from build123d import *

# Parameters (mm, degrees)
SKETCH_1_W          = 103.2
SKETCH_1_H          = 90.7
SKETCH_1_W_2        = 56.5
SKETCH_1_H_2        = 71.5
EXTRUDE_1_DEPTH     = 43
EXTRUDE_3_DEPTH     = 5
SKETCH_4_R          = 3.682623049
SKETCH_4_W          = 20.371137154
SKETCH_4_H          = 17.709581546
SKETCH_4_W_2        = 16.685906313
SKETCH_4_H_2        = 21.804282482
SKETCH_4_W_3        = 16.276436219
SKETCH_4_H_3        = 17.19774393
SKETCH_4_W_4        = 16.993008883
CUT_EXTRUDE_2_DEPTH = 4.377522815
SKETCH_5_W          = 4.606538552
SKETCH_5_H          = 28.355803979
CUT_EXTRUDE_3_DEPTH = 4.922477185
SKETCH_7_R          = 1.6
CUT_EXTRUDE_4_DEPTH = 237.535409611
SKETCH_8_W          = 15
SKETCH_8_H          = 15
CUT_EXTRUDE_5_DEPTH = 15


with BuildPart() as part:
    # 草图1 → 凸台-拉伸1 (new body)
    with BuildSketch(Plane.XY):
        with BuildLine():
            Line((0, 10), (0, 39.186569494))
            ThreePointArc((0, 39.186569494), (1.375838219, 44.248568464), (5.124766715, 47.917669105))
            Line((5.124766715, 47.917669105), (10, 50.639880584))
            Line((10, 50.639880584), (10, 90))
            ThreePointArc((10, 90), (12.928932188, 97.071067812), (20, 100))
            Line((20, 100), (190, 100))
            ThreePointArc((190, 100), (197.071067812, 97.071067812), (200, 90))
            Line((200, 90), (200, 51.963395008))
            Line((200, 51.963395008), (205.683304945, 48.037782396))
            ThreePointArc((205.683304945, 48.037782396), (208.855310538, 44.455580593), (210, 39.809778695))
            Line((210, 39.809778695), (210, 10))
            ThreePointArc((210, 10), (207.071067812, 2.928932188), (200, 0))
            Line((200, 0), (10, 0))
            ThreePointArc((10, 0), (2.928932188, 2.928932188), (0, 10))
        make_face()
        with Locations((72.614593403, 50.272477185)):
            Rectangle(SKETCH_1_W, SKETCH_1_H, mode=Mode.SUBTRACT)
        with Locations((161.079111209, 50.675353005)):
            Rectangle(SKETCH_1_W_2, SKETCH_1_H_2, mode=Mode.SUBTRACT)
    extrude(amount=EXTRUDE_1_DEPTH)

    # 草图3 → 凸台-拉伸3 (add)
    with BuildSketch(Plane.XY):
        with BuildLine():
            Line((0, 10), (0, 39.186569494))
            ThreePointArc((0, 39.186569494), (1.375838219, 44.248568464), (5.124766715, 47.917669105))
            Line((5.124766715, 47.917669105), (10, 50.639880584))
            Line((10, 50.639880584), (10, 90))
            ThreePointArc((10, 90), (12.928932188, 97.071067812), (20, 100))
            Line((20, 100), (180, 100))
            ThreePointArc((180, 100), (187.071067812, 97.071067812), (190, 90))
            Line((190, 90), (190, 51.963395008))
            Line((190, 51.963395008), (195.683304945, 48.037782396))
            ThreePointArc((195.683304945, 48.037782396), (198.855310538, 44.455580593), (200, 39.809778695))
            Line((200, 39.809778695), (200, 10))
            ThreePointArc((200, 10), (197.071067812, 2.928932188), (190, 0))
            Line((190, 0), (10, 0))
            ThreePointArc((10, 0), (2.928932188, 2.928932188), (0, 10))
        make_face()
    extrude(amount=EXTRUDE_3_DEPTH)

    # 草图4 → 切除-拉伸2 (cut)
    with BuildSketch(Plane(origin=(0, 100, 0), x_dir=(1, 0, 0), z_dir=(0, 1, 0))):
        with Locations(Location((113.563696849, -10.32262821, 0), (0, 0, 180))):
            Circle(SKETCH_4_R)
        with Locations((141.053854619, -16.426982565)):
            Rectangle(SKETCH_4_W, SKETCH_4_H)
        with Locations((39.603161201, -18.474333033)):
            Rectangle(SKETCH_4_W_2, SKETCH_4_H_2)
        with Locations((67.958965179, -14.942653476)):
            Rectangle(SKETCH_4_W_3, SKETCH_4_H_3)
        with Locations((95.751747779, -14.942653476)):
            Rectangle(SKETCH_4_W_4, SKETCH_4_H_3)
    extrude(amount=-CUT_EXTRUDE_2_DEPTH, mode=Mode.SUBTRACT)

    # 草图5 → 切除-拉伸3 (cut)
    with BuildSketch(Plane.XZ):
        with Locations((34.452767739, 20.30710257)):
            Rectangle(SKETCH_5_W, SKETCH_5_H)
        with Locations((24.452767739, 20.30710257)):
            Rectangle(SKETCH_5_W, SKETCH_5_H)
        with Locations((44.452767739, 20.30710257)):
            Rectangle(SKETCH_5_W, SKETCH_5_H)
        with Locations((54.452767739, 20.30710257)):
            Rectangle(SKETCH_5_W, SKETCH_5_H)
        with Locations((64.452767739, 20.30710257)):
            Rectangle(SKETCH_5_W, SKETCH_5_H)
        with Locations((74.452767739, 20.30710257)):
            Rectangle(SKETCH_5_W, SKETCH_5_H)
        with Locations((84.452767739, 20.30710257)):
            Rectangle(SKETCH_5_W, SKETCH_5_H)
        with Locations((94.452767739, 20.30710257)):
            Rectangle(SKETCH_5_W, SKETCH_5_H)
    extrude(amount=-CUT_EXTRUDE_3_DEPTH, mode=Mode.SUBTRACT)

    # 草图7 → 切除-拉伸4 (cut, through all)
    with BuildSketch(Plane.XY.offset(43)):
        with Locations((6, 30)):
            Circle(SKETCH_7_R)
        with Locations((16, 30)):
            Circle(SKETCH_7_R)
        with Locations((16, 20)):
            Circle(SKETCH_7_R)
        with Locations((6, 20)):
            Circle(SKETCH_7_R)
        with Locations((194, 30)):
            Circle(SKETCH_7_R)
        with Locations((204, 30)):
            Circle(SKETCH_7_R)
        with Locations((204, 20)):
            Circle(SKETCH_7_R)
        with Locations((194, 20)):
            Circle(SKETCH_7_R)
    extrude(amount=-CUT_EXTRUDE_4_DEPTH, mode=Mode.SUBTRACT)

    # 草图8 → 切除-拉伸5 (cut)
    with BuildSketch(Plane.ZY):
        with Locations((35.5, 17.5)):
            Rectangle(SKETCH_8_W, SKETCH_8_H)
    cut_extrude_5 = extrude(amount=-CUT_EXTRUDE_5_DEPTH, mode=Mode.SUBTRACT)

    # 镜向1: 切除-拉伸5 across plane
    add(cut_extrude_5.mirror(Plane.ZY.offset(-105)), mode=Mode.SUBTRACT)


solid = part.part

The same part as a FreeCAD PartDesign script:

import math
import FreeCAD as App
import Part
import Sketcher

V = App.Vector


def add_polygon(sketch, points):
    """Adds a closed chain of lines whose ends are joined by coincident constraints."""
    first, n = sketch.GeometryCount, len(points)
    for a, b in zip(points, points[1:] + points[:1]):
        sketch.addGeometry(Part.LineSegment(App.Vector(*a, 0), App.Vector(*b, 0)), False)
    for i in range(n):
        sketch.addConstraint(Sketcher.Constraint("Coincident", first + i, 2, first + (i + 1) % n, 1))

doc = App.newDocument("Part")
body = doc.addObject("PartDesign::Body", "Body")

sketch1 = body.newObject("Sketcher::SketchObject", "Sketch")
sketch1.AttachmentSupport = (doc.getObject("XY_Plane"), [""])
sketch1.MapMode = "FlatFace"
sketch1.addGeometry(Part.LineSegment(V(0, 39, 0), V(0, 10, 0)), False)
sketch1.addGeometry(Part.ArcOfCircle(Part.Circle(V(10, 10, 0), V(0, 0, 1), 10), math.radians(180), math.radians(270)), False)
sketch1.addGeometry(Part.LineSegment(V(10, 0, 0), V(200, 0, 0)), False)
sketch1.addGeometry(Part.ArcOfCircle(Part.Circle(V(200, 10, 0), V(0, 0, 1), 10), math.radians(-90), math.radians(0)), False)
sketch1.addGeometry(Part.LineSegment(V(210, 10, 0), V(210, 40, 0)), False)
sketch1.addGeometry(Part.ArcOfCircle(Part.Circle(V(200, 40, 0), V(0, 0, 1), 10), math.radians(0), math.radians(55)), False)
sketch1.addGeometry(Part.LineSegment(V(206, 48, 0), V(200, 52, 0)), False)
sketch1.addGeometry(Part.LineSegment(V(200, 52, 0), V(200, 90, 0)), False)
sketch1.addGeometry(Part.ArcOfCircle(Part.Circle(V(190, 90, 0), V(0, 0, 1), 10), math.radians(0), math.radians(90)), False)
sketch1.addGeometry(Part.LineSegment(V(190, 100, 0), V(20, 100, 0)), False)
sketch1.addGeometry(Part.ArcOfCircle(Part.Circle(V(20, 90, 0), V(0, 0, 1), 10), math.radians(90), math.radians(180)), False)
sketch1.addGeometry(Part.LineSegment(V(10, 90, 0), V(10, 51, 0)), False)
sketch1.addGeometry(Part.LineSegment(V(10, 51, 0), V(5, 48, 0)), False)
sketch1.addGeometry(Part.ArcOfCircle(Part.Circle(V(10, 39, 0), V(0, 0, 1), 10), math.radians(119), math.radians(180)), False)
add_polygon(sketch1, [(133, 15), (133, 86), (189, 86), (189, 15)])
add_polygon(sketch1, [(21, 5), (21, 96), (124, 96), (124, 5)])
sketch1.addConstraint([
    Sketcher.Constraint("Tangent", 0, 2, 1, 1),
    Sketcher.Constraint("Tangent", 1, 2, 2, 1),
    Sketcher.Constraint("Tangent", 2, 2, 3, 1),
    Sketcher.Constraint("Tangent", 3, 2, 4, 1),
    Sketcher.Constraint("Tangent", 4, 2, 5, 1),
    Sketcher.Constraint("Tangent", 5, 2, 6, 1),
    Sketcher.Constraint("Coincident", 6, 2, 7, 1),
    Sketcher.Constraint("Tangent", 7, 2, 8, 1),
    Sketcher.Constraint("Tangent", 8, 2, 9, 1),
    Sketcher.Constraint("Tangent", 9, 2, 10, 1),
    Sketcher.Constraint("Tangent", 10, 2, 11, 1),
    Sketcher.Constraint("Coincident", 11, 2, 12, 1),
    Sketcher.Constraint("Tangent", 12, 2, 13, 1),
    Sketcher.Constraint("Tangent", 13, 2, 0, 1),
    Sketcher.Constraint("Vertical", 0),
    Sketcher.Constraint("Horizontal", 2),
    Sketcher.Constraint("Vertical", 4),
    Sketcher.Constraint("Vertical", 7),
    Sketcher.Constraint("Horizontal", 9),
    Sketcher.Constraint("Vertical", 11),
    Sketcher.Constraint("Vertical", 14),
    Sketcher.Constraint("Horizontal", 15),
    Sketcher.Constraint("Vertical", 16),
    Sketcher.Constraint("Horizontal", 17),
    Sketcher.Constraint("Vertical", 18),
    Sketcher.Constraint("Horizontal", 19),
    Sketcher.Constraint("Vertical", 20),
    Sketcher.Constraint("Horizontal", 21),
    Sketcher.Constraint("Equal", 1, 3),
    Sketcher.Constraint("Equal", 3, 5),
    Sketcher.Constraint("Equal", 5, 8),
    Sketcher.Constraint("Equal", 8, 10),
    Sketcher.Constraint("Equal", 10, 13),
    Sketcher.Constraint("PointOnObject", 0, 2, -2),
    Sketcher.Constraint("PointOnObject", 1, 2, -1),
    Sketcher.Constraint("Vertical", 2, 2, 6, 2),
    Sketcher.Constraint("Vertical", 1, 2, 10, 2),
    Sketcher.Constraint("Radius", 1, 10.0),
    Sketcher.Constraint("DistanceX", 2, 1, 2, 2, 190.0),
    Sketcher.Constraint("DistanceX", 15, 1, 15, 2, 56.5),
    Sketcher.Constraint("DistanceX", 19, 1, 19, 2, 103.2),
    Sketcher.Constraint("DistanceY", 14, 1, 14, 2, 71.5),
    Sketcher.Constraint("DistanceY", 18, 1, 18, 2, 90.7),
    Sketcher.Constraint("DistanceY", -1, 1, 8, 3, 90.0),
    Sketcher.Constraint("DistanceY", 0, 2, 0, 1, 29.186569),
    Sketcher.Constraint("DistanceY", 4, 1, 4, 2, 29.809779),
    Sketcher.Constraint("DistanceY", 11, 2, 11, 1, 39.360119),
    Sketcher.Constraint("Distance", 6, 6.907271),
    Sketcher.Constraint("DistanceX", -1, 1, 14, 2, 132.829111),
    Sketcher.Constraint("DistanceY", 5, 2, 15, 2, 38.387571),
    Sketcher.Constraint("DistanceY", 12, 2, 18, 2, 47.704808),
    Sketcher.Constraint("DistanceX", -1, 1, 18, 2, 21.014593),
])
pad1 = body.newObject("PartDesign::Pad", "Pad")
pad1.Profile = sketch1
pad1.Length = 43

sketch2 = body.newObject("Sketcher::SketchObject", "Sketch001")
sketch2.AttachmentSupport = (doc.getObject("XY_Plane"), [""])
sketch2.MapMode = "FlatFace"
sketch2.addGeometry([
    Part.LineSegment(V(0, 39, 0), V(0, 10, 0)),
    Part.ArcOfCircle(Part.Circle(V(10, 10, 0), V(0, 0, 1), 10), math.radians(180), math.radians(270)),
    Part.LineSegment(V(10, 0, 0), V(190, 0, 0)),
    Part.ArcOfCircle(Part.Circle(V(190, 10, 0), V(0, 0, 1), 10), math.radians(-90), math.radians(0)),
    Part.LineSegment(V(200, 10, 0), V(200, 40, 0)),
    Part.ArcOfCircle(Part.Circle(V(190, 40, 0), V(0, 0, 1), 10), math.radians(0), math.radians(55)),
    Part.LineSegment(V(196, 48, 0), V(190, 52, 0)),
    Part.LineSegment(V(190, 52, 0), V(190, 90, 0)),
    Part.ArcOfCircle(Part.Circle(V(180, 90, 0), V(0, 0, 1), 10), math.radians(0), math.radians(90)),
    Part.LineSegment(V(180, 100, 0), V(20, 100, 0)),
    Part.ArcOfCircle(Part.Circle(V(20, 90, 0), V(0, 0, 1), 10), math.radians(90), math.radians(180)),
    Part.LineSegment(V(10, 90, 0), V(10, 51, 0)),
    Part.LineSegment(V(10, 51, 0), V(5, 48, 0)),
    Part.ArcOfCircle(Part.Circle(V(10, 39, 0), V(0, 0, 1), 10), math.radians(119), math.radians(180)),
], False)
sketch2.addConstraint([
    Sketcher.Constraint("Tangent", 0, 2, 1, 1),
    Sketcher.Constraint("Tangent", 1, 2, 2, 1),
    Sketcher.Constraint("Tangent", 2, 2, 3, 1),
    Sketcher.Constraint("Tangent", 3, 2, 4, 1),
    Sketcher.Constraint("Tangent", 4, 2, 5, 1),
    Sketcher.Constraint("Tangent", 5, 2, 6, 1),
    Sketcher.Constraint("Coincident", 6, 2, 7, 1),
    Sketcher.Constraint("Tangent", 7, 2, 8, 1),
    Sketcher.Constraint("Tangent", 8, 2, 9, 1),
    Sketcher.Constraint("Tangent", 9, 2, 10, 1),
    Sketcher.Constraint("Tangent", 10, 2, 11, 1),
    Sketcher.Constraint("Coincident", 11, 2, 12, 1),
    Sketcher.Constraint("Tangent", 12, 2, 13, 1),
    Sketcher.Constraint("Tangent", 13, 2, 0, 1),
    Sketcher.Constraint("Vertical", 0),
    Sketcher.Constraint("Horizontal", 2),
    Sketcher.Constraint("Vertical", 4),
    Sketcher.Constraint("Vertical", 7),
    Sketcher.Constraint("Horizontal", 9),
    Sketcher.Constraint("Vertical", 11),
    Sketcher.Constraint("Equal", 1, 3),
    Sketcher.Constraint("Equal", 3, 5),
    Sketcher.Constraint("Equal", 5, 8),
    Sketcher.Constraint("Equal", 8, 10),
    Sketcher.Constraint("Equal", 10, 13),
    Sketcher.Constraint("PointOnObject", 0, 2, -2),
    Sketcher.Constraint("PointOnObject", 1, 2, -1),
    Sketcher.Constraint("Vertical", 2, 2, 6, 2),
    Sketcher.Constraint("Vertical", 1, 2, 10, 2),
    Sketcher.Constraint("Radius", 1, 10.0),
    Sketcher.Constraint("DistanceX", 2, 1, 2, 2, 180.0),
    Sketcher.Constraint("DistanceY", -1, 1, 8, 3, 90.0),
    Sketcher.Constraint("DistanceY", 0, 2, 0, 1, 29.186569),
    Sketcher.Constraint("DistanceY", 4, 1, 4, 2, 29.809779),
    Sketcher.Constraint("DistanceY", 11, 2, 11, 1, 39.360119),
    Sketcher.Constraint("Distance", 6, 6.907271),
])
pad2 = body.newObject("PartDesign::Pad", "Pad001")
pad2.Profile = sketch2
pad2.Length = 5

sketch3 = body.newObject("Sketcher::SketchObject", "Sketch002")
sketch3.AttachmentSupport = (doc.getObject("XZ_Plane"), [""])
sketch3.MapMode = "FlatFace"
sketch3.AttachmentOffset = App.Placement(V(0, 0, -100), App.Rotation())
sketch3.addGeometry(Part.Circle(V(113.6, 10.3, 0), V(0, 0, 1), 3.7), False)
add_polygon(sketch3, [(130.9, 7.6), (130.9, 25.3), (151.2, 25.3), (151.2, 7.6)])
add_polygon(sketch3, [(31.3, 7.6), (31.3, 29.4), (47.9, 29.4), (47.9, 7.6)])
add_polygon(sketch3, [(59.8, 6.3), (59.8, 23.5), (76.1, 23.5), (76.1, 6.3)])
add_polygon(sketch3, [(87.3, 6.3), (87.3, 23.5), (104.2, 23.5), (104.2, 6.3)])
sketch3.addConstraint([
    Sketcher.Constraint("Vertical", 1),
    Sketcher.Constraint("Horizontal", 2),
    Sketcher.Constraint("Vertical", 3),
    Sketcher.Constraint("Horizontal", 4),
    Sketcher.Constraint("Vertical", 5),
    Sketcher.Constraint("Horizontal", 6),
    Sketcher.Constraint("Vertical", 7),
    Sketcher.Constraint("Horizontal", 8),
    Sketcher.Constraint("Vertical", 9),
    Sketcher.Constraint("Horizontal", 10),
    Sketcher.Constraint("Vertical", 11),
    Sketcher.Constraint("Horizontal", 12),
    Sketcher.Constraint("Vertical", 13),
    Sketcher.Constraint("Horizontal", 14),
    Sketcher.Constraint("Vertical", 15),
    Sketcher.Constraint("Horizontal", 16),
    Sketcher.Constraint("Horizontal", 4, 2, 7, 2),
    Sketcher.Constraint("Horizontal", 10, 2, 13, 2),
    Sketcher.Constraint("Horizontal", 12, 2, 15, 2),
    Sketcher.Constraint("Diameter", 0, 7.365246),
    Sketcher.Constraint("DistanceX", 14, 1, 14, 2, 16.993009),
    Sketcher.Constraint("DistanceY", 1, 1, 1, 2, 17.709582),
    Sketcher.Constraint("DistanceY", 1, 2, 5, 2, 4.094701),
    Sketcher.Constraint("DistanceX", 2, 1, 2, 2, 20.371137),
    Sketcher.Constraint("DistanceX", 6, 1, 6, 2, 16.685906),
    Sketcher.Constraint("DistanceX", 10, 1, 10, 2, 16.276436),
    Sketcher.Constraint("DistanceY", 9, 1, 9, 2, 17.197744),
    Sketcher.Constraint("DistanceY", -1, 1, 0, 3, 10.322628),
    Sketcher.Constraint("DistanceY", -1, 1, 3, 2, 7.572192),
    Sketcher.Constraint("DistanceX", -1, 1, 5, 2, 31.260208),
    Sketcher.Constraint("DistanceY", -1, 1, 11, 2, 6.343782),
    Sketcher.Constraint("DistanceX", 0, 3, 1, 2, 17.304589),
    Sketcher.Constraint("DistanceX", 5, 2, 0, 3, 82.303489),
    Sketcher.Constraint("DistanceX", 5, 2, 9, 2, 28.560539),
    Sketcher.Constraint("DistanceX", 10, 2, 13, 2, 11.15806),
])
pocket1 = body.newObject("PartDesign::Pocket", "Pocket")
pocket1.Profile = sketch3
pocket1.Length = 4.377523
pocket1.Reversed = True

sketch4 = body.newObject("Sketcher::SketchObject", "Sketch003")
sketch4.AttachmentSupport = (doc.getObject("XZ_Plane"), [""])
sketch4.MapMode = "FlatFace"
add_polygon(sketch4, [(32.1, 34.5), (32.1, 6.1), (36.8, 6.1), (36.8, 34.5)])
add_polygon(sketch4, [(22.1, 34.5), (22.1, 6.1), (26.8, 6.1), (26.8, 34.5)])
add_polygon(sketch4, [(42.1, 34.5), (42.1, 6.1), (46.8, 6.1), (46.8, 34.5)])
add_polygon(sketch4, [(52.1, 34.5), (52.1, 6.1), (56.8, 6.1), (56.8, 34.5)])
add_polygon(sketch4, [(62.1, 34.5), (62.1, 6.1), (66.8, 6.1), (66.8, 34.5)])
add_polygon(sketch4, [(72.1, 34.5), (72.1, 6.1), (76.8, 6.1), (76.8, 34.5)])
add_polygon(sketch4, [(82.1, 34.5), (82.1, 6.1), (86.8, 6.1), (86.8, 34.5)])
add_polygon(sketch4, [(92.1, 34.5), (92.1, 6.1), (96.8, 6.1), (96.8, 34.5)])
sketch4.addConstraint([
    Sketcher.Constraint("Vertical", 0),
    Sketcher.Constraint("Horizontal", 1),
    Sketcher.Constraint("Vertical", 2),
    Sketcher.Constraint("Horizontal", 3),
    Sketcher.Constraint("Vertical", 4),
    Sketcher.Constraint("Horizontal", 5),
    Sketcher.Constraint("Vertical", 6),
    Sketcher.Constraint("Horizontal", 7),
    Sketcher.Constraint("Vertical", 8),
    Sketcher.Constraint("Horizontal", 9),
    Sketcher.Constraint("Vertical", 10),
    Sketcher.Constraint("Horizontal", 11),
    Sketcher.Constraint("Vertical", 12),
    Sketcher.Constraint("Horizontal", 13),
    Sketcher.Constraint("Vertical", 14),
    Sketcher.Constraint("Horizontal", 15),
    Sketcher.Constraint("Vertical", 16),
    Sketcher.Constraint("Horizontal", 17),
    Sketcher.Constraint("Vertical", 18),
    Sketcher.Constraint("Horizontal", 19),
    Sketcher.Constraint("Vertical", 20),
    Sketcher.Constraint("Horizontal", 21),
    Sketcher.Constraint("Vertical", 22),
    Sketcher.Constraint("Horizontal", 23),
    Sketcher.Constraint("Vertical", 24),
    Sketcher.Constraint("Horizontal", 25),
    Sketcher.Constraint("Vertical", 26),
    Sketcher.Constraint("Horizontal", 27),
    Sketcher.Constraint("Vertical", 28),
    Sketcher.Constraint("Horizontal", 29),
    Sketcher.Constraint("Vertical", 30),
    Sketcher.Constraint("Horizontal", 31),
    Sketcher.Constraint("Horizontal", 1, 2, 4, 2),
    Sketcher.Constraint("Horizontal", 3, 2, 6, 2),
    Sketcher.Constraint("Horizontal", 5, 2, 8, 2),
    Sketcher.Constraint("Horizontal", 7, 2, 10, 2),
    Sketcher.Constraint("Horizontal", 9, 2, 12, 2),
    Sketcher.Constraint("Horizontal", 11, 2, 14, 2),
    Sketcher.Constraint("Horizontal", 13, 2, 16, 2),
    Sketcher.Constraint("Horizontal", 15, 2, 18, 2),
    Sketcher.Constraint("Horizontal", 17, 2, 20, 2),
    Sketcher.Constraint("Horizontal", 19, 2, 22, 2),
    Sketcher.Constraint("Horizontal", 21, 2, 24, 2),
    Sketcher.Constraint("Horizontal", 23, 2, 26, 2),
    Sketcher.Constraint("Horizontal", 25, 2, 28, 2),
    Sketcher.Constraint("Horizontal", 27, 2, 30, 2),
    Sketcher.Constraint("Equal", 3, 5),
    Sketcher.Constraint("Equal", 7, 9),
    Sketcher.Constraint("Equal", 11, 13),
    Sketcher.Constraint("Equal", 15, 17),
    Sketcher.Constraint("Equal", 19, 21),
    Sketcher.Constraint("Equal", 23, 25),
    Sketcher.Constraint("Equal", 27, 29),
    Sketcher.Constraint("DistanceX", 4, 2, 0, 2, 10.0),
    Sketcher.Constraint("DistanceX", 0, 2, 8, 2, 10.0),
    Sketcher.Constraint("DistanceX", 8, 2, 12, 2, 10.0),
    Sketcher.Constraint("DistanceX", 12, 2, 16, 2, 10.0),
    Sketcher.Constraint("DistanceX", 16, 2, 20, 2, 10.0),
    Sketcher.Constraint("DistanceX", 20, 2, 24, 2, 10.0),
    Sketcher.Constraint("DistanceX", 24, 2, 28, 2, 10.0),
    Sketcher.Constraint("DistanceX", 1, 1, 1, 2, 4.606539),
    Sketcher.Constraint("DistanceX", -1, 1, 0, 2, 32.149498),
    Sketcher.Constraint("DistanceY", -1, 1, 0, 2, 6.129201),
    Sketcher.Constraint("DistanceY", 0, 2, 0, 1, 28.355804),
])
pocket2 = body.newObject("PartDesign::Pocket", "Pocket001")
pocket2.Profile = sketch4
pocket2.Length = 4.922477

sketch5 = body.newObject("Sketcher::SketchObject", "Sketch004")
sketch5.AttachmentSupport = (doc.getObject("XY_Plane"), [""])
sketch5.MapMode = "FlatFace"
sketch5.AttachmentOffset = App.Placement(V(0, 0, 43), App.Rotation())
sketch5.addGeometry([
    Part.Circle(V(6, 30, 0), V(0, 0, 1), 1.6),
    Part.Circle(V(16, 30, 0), V(0, 0, 1), 1.6),
    Part.Circle(V(16, 20, 0), V(0, 0, 1), 1.6),
    Part.Circle(V(6, 20, 0), V(0, 0, 1), 1.6),
    Part.Circle(V(194, 30, 0), V(0, 0, 1), 1.6),
    Part.Circle(V(204, 30, 0), V(0, 0, 1), 1.6),
    Part.Circle(V(204, 20, 0), V(0, 0, 1), 1.6),
    Part.Circle(V(194, 20, 0), V(0, 0, 1), 1.6),
], False)
sketch5.addConstraint([
    Sketcher.Constraint("Equal", 0, 1),
    Sketcher.Constraint("Equal", 1, 2),
    Sketcher.Constraint("Equal", 2, 3),
    Sketcher.Constraint("Equal", 3, 4),
    Sketcher.Constraint("Equal", 4, 5),
    Sketcher.Constraint("Equal", 5, 6),
    Sketcher.Constraint("Equal", 6, 7),
    Sketcher.Constraint("Horizontal", 0, 3, 1, 3),
    Sketcher.Constraint("Horizontal", 2, 3, 3, 3),
    Sketcher.Constraint("Horizontal", 1, 3, 4, 3),
    Sketcher.Constraint("Horizontal", 4, 3, 5, 3),
    Sketcher.Constraint("Horizontal", 3, 3, 6, 3),
    Sketcher.Constraint("Horizontal", 6, 3, 7, 3),
    Sketcher.Constraint("Vertical", 1, 3, 2, 3),
    Sketcher.Constraint("Vertical", 0, 3, 3, 3),
    Sketcher.Constraint("Vertical", 5, 3, 6, 3),
    Sketcher.Constraint("Vertical", 4, 3, 7, 3),
    Sketcher.Constraint("Diameter", 0, 3.2),
    Sketcher.Constraint("DistanceX", -1, 1, 0, 3, 6.0),
    Sketcher.Constraint("DistanceY", -1, 1, 0, 3, 30.0),
    Sketcher.Constraint("DistanceX", -1, 1, 1, 3, 16.0),
    Sketcher.Constraint("DistanceY", -1, 1, 2, 3, 20.0),
    Sketcher.Constraint("DistanceX", -1, 1, 4, 3, 194.0),
    Sketcher.Constraint("DistanceX", -1, 1, 5, 3, 204.0),
])
pocket3 = body.newObject("PartDesign::Pocket", "Pocket002")
pocket3.Profile = sketch5
pocket3.Type = "ThroughAll"

sketch6 = body.newObject("Sketcher::SketchObject", "Sketch005")
sketch6.AttachmentSupport = (doc.getObject("YZ_Plane"), [""])
sketch6.MapMode = "FlatFace"
add_polygon(sketch6, [(25, 28), (10, 28), (10, 43), (25, 43)])
sketch6.addConstraint([
    Sketcher.Constraint("Horizontal", 0),
    Sketcher.Constraint("Vertical", 1),
    Sketcher.Constraint("Horizontal", 2),
    Sketcher.Constraint("Vertical", 3),
    Sketcher.Constraint("Equal", 2, 1),
    Sketcher.Constraint("DistanceX", 0, 2, 0, 1, 15.0),
    Sketcher.Constraint("DistanceX", -1, 1, 0, 2, 10.0),
    Sketcher.Constraint("DistanceY", -1, 1, 0, 2, 28.0),
])
pocket4 = body.newObject("PartDesign::Pocket", "Pocket003")
pocket4.Profile = sketch6
pocket4.Length = 15
pocket4.Reversed = True
doc.recompute()

datumplane = body.newObject("PartDesign::Plane", "DatumPlane")
datumplane.AttachmentSupport = (doc.getObject("YZ_Plane"), [""])
datumplane.MapMode = "FlatFace"
datumplane.AttachmentOffset = App.Placement(V(0, 0, 105), App.Rotation())
mirrored = body.newObject("PartDesign::Mirrored", "Mirrored")
mirrored.Originals = [pocket4]
mirrored.MirrorPlane = (datumplane, [""])
body.Tip = mirrored

doc.recompute()
